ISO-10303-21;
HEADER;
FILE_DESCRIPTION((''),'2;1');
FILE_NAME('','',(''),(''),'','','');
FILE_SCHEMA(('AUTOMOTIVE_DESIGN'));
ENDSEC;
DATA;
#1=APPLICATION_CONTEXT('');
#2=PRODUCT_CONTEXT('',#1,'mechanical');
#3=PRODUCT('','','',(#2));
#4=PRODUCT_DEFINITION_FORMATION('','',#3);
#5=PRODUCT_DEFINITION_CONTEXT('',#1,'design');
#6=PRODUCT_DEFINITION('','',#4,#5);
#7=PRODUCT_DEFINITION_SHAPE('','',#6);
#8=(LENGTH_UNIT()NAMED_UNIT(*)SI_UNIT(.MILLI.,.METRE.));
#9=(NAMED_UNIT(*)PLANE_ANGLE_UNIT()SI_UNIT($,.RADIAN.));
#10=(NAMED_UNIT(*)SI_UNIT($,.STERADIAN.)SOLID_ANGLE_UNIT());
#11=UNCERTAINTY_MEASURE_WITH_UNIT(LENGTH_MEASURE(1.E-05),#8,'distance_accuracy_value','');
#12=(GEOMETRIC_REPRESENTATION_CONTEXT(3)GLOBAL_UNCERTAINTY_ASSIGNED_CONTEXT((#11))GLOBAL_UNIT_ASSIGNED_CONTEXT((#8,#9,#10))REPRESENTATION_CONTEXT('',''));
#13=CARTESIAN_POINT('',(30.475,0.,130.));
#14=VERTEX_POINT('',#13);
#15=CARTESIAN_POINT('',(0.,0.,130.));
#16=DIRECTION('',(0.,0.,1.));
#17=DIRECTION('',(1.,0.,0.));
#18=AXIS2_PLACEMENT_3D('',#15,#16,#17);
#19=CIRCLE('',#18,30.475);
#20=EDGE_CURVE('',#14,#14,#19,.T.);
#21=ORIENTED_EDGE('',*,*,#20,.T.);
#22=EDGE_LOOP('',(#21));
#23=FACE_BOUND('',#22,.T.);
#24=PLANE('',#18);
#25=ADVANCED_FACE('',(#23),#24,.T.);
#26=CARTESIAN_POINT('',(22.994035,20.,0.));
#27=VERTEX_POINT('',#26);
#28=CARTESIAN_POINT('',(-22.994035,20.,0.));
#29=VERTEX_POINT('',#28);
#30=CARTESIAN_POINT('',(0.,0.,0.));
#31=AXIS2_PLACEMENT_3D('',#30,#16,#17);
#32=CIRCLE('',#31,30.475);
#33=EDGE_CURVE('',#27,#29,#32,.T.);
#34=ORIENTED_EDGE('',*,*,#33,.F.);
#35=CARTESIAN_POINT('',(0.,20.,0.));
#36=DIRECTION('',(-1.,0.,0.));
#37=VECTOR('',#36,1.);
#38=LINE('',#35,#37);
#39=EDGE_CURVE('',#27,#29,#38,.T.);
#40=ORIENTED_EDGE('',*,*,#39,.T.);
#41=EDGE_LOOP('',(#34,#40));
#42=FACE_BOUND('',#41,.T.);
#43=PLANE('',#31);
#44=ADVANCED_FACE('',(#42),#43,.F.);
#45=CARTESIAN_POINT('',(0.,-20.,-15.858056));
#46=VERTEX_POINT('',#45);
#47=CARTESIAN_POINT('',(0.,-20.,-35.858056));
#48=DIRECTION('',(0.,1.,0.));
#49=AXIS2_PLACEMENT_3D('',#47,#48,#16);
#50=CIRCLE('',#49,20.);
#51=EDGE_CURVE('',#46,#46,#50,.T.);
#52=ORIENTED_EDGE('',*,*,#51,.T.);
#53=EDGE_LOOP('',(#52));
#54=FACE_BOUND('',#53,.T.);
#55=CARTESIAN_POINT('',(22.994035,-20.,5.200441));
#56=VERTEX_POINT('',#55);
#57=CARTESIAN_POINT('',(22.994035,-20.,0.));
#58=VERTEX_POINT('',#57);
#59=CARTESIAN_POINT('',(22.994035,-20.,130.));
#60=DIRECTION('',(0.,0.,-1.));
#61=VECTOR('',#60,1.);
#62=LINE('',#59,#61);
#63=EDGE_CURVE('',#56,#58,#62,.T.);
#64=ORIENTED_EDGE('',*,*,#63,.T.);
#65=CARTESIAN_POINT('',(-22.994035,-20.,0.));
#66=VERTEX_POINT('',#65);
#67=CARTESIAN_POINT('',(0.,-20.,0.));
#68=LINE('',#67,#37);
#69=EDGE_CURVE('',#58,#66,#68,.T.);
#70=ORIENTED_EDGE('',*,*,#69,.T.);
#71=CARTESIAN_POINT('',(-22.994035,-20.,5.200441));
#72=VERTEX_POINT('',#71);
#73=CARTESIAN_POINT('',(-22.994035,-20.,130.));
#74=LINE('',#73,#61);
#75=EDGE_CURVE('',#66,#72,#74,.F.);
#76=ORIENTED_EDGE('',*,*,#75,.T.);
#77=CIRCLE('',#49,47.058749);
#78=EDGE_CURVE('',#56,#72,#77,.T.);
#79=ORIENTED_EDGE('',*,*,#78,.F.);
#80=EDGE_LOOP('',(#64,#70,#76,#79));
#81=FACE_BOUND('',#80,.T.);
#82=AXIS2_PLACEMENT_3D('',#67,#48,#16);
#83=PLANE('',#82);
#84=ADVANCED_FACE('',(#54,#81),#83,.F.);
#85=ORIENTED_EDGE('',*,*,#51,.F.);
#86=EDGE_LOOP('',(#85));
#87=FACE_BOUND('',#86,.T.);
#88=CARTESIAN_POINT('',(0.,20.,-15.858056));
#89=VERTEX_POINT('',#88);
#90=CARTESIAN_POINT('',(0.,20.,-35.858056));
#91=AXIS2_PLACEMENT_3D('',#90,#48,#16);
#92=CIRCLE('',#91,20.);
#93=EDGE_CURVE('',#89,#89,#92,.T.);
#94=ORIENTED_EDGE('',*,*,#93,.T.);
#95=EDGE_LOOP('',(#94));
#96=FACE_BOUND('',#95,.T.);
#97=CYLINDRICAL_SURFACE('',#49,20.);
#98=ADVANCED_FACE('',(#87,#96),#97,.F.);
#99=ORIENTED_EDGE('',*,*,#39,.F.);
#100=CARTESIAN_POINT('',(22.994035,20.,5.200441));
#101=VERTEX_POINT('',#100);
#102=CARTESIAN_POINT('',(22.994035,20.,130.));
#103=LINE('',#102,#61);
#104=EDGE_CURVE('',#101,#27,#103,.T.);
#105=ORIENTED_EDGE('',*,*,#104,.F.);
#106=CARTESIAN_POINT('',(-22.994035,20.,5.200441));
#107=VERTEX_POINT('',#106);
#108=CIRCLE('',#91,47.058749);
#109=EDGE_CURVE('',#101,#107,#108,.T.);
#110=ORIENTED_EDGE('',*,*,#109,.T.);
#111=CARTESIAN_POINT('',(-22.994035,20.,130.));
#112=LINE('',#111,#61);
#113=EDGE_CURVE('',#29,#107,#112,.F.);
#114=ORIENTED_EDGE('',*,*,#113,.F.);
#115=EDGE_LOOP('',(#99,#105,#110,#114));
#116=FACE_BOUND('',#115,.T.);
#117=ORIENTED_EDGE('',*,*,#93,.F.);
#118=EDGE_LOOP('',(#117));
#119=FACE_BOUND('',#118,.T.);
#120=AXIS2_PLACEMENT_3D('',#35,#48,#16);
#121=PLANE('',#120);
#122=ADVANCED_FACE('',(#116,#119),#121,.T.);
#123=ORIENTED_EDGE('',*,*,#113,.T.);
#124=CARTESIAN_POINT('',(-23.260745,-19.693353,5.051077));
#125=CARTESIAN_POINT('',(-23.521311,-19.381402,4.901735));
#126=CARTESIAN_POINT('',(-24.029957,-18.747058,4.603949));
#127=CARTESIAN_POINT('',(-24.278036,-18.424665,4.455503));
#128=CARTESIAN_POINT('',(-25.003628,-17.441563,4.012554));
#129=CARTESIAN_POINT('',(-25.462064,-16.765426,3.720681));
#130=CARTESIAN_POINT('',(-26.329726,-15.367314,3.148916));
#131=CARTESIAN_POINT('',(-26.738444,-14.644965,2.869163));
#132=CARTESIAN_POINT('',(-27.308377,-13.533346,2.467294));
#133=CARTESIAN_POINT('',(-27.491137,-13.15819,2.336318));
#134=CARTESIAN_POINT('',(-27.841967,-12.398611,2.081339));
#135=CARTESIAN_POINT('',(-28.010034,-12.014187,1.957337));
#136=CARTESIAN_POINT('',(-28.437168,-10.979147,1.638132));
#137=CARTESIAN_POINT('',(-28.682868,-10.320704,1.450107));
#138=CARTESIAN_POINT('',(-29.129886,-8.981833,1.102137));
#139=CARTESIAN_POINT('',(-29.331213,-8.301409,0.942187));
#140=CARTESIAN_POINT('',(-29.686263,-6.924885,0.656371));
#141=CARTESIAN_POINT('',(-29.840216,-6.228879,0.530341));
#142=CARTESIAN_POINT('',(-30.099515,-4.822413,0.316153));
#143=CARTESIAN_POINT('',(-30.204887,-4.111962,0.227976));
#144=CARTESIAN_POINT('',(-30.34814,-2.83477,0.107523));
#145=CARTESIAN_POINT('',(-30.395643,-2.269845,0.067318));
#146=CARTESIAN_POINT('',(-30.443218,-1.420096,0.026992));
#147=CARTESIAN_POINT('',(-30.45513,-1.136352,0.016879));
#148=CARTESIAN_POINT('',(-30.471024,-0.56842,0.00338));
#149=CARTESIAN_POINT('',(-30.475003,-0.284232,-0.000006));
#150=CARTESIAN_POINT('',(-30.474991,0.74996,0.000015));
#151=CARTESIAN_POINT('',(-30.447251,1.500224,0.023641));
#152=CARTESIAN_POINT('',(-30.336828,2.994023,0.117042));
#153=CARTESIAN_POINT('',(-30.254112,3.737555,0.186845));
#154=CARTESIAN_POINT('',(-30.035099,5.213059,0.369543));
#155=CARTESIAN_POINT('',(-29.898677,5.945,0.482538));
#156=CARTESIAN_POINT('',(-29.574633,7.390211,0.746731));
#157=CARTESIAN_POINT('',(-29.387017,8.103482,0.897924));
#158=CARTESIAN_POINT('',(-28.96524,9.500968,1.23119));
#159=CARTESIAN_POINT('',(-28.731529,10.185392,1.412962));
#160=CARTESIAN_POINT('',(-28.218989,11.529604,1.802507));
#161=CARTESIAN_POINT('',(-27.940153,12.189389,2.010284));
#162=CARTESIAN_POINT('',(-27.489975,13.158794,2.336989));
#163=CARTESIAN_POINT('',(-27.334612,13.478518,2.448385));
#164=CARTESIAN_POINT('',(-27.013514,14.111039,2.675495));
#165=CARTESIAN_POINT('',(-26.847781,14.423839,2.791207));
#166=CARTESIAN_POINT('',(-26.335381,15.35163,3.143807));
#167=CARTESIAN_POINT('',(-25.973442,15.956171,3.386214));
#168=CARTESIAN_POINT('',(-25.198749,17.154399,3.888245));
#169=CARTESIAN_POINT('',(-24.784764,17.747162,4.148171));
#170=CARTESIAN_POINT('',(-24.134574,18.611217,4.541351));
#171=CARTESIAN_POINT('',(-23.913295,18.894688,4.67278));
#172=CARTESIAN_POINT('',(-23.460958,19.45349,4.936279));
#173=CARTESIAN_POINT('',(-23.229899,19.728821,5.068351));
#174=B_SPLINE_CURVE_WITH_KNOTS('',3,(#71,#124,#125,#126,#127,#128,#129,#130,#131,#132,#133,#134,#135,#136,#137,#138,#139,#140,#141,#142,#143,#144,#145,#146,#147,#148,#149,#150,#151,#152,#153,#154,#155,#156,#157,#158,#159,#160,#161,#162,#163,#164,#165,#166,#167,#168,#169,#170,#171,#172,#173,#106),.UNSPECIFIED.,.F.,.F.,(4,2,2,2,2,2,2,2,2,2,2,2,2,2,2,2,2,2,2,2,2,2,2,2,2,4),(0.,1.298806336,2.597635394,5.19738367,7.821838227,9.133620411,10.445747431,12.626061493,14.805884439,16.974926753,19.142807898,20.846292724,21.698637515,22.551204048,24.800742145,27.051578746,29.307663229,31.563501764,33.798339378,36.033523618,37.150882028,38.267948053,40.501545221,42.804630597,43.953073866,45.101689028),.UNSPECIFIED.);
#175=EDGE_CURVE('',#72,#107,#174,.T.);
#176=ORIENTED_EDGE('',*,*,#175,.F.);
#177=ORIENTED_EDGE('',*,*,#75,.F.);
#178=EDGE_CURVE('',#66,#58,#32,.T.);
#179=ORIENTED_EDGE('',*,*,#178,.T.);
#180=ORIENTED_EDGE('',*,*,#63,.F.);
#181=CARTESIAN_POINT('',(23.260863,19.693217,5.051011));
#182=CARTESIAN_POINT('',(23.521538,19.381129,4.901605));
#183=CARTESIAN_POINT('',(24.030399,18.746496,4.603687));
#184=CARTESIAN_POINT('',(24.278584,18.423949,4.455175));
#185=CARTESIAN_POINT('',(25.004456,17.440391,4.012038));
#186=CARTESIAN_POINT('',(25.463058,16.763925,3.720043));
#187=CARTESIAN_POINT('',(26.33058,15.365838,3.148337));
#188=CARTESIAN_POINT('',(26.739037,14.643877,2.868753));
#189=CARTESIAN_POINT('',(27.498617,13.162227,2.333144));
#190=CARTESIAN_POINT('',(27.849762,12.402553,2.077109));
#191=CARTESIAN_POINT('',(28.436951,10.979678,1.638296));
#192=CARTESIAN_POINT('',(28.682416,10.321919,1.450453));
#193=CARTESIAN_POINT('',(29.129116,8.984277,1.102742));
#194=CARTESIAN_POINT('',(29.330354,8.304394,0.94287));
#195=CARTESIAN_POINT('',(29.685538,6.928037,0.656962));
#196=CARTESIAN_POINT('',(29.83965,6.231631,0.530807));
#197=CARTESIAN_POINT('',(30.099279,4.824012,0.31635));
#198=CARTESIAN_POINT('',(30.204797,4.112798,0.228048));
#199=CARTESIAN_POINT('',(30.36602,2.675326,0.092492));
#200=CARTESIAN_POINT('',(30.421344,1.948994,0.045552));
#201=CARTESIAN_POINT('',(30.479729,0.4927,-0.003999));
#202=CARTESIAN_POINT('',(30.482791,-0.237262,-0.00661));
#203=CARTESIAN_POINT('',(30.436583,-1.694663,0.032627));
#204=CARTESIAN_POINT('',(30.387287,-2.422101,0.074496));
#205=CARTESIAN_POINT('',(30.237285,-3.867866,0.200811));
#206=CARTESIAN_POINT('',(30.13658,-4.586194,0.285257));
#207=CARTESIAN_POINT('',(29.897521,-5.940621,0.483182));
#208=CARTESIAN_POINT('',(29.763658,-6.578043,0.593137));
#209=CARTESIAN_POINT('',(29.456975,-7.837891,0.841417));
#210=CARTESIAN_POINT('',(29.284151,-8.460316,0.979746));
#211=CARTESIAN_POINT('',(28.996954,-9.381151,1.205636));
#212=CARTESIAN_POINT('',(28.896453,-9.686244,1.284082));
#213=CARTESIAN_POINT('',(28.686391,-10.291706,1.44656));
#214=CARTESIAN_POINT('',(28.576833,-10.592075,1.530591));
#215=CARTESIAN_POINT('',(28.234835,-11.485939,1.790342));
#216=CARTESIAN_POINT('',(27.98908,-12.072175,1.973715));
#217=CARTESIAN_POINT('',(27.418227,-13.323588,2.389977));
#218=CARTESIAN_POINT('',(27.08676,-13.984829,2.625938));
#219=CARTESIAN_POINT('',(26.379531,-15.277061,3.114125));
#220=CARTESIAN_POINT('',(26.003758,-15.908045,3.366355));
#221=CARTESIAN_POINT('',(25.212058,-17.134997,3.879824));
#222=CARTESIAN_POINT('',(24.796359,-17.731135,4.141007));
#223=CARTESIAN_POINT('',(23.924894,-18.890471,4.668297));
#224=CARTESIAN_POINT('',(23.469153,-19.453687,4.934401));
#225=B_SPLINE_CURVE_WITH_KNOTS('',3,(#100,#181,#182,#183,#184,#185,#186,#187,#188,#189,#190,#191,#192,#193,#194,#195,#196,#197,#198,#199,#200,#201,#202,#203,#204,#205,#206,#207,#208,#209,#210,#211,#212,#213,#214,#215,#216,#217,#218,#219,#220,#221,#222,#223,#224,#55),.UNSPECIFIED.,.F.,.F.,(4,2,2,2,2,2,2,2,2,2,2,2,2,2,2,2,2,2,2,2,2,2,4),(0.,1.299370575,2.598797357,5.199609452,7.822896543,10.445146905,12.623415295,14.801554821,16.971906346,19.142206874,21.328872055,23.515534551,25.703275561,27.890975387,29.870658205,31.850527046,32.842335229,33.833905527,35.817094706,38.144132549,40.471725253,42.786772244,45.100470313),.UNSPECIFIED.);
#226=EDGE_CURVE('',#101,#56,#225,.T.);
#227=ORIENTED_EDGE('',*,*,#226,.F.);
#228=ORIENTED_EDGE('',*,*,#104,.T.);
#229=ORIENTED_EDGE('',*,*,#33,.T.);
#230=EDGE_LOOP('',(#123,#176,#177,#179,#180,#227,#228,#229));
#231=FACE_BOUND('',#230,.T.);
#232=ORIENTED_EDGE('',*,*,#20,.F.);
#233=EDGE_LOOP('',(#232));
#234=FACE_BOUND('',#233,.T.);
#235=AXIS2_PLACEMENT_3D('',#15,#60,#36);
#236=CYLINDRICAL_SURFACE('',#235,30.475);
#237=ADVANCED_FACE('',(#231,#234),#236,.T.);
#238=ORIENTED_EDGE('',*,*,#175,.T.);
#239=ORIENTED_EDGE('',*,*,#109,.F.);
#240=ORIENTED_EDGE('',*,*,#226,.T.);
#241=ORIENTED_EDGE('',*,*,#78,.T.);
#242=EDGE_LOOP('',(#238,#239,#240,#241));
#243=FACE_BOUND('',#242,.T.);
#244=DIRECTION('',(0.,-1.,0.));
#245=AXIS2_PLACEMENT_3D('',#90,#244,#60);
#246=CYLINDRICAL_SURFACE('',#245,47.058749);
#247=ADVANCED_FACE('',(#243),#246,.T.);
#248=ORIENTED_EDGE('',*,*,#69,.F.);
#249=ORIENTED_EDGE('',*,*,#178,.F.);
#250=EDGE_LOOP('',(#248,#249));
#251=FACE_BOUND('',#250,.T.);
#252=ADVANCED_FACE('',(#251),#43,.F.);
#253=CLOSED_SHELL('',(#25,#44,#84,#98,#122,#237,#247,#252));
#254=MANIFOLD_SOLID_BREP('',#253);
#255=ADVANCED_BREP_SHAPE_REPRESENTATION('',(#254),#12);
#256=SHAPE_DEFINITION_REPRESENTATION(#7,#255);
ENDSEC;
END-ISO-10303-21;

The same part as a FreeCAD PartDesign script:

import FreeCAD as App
import Part
import Sketcher

V = App.Vector

doc = App.newDocument("Part")
body = doc.addObject("PartDesign::Body", "Body")

# Sketch on XY plane
sketch1 = body.newObject("Sketcher::SketchObject", "Sketch")
sketch1.AttachmentSupport = (doc.getObject("XY_Plane"), [""])
sketch1.MapMode = "FlatFace"
sketch1.addGeometry(Part.Circle(V(0, 0, 0), V(0, 0, 1), 30.475), False)
sketch1.addConstraint(Sketcher.Constraint("Coincident", 0, 3, -1, 1))
sketch1.addConstraint(Sketcher.Constraint("Diameter", 0, 60.95))
pad1 = body.newObject("PartDesign::Pad", "Pad")
pad1.Profile = sketch1
pad1.Length = 130

# Sketch on XZ plane
sketch2 = body.newObject("Sketcher::SketchObject", "Sketch001")
sketch2.AttachmentSupport = (doc.getObject("XZ_Plane"), [""])
sketch2.MapMode = "FlatFace"
sketch2.addGeometry(Part.Circle(V(0, -35.858056, 0), V(0, 0, 1), 47.058749), False)
sketch2.addConstraint(Sketcher.Constraint("PointOnObject", 0, 3, -2))
sketch2.addConstraint(Sketcher.Constraint("Diameter", 0, 94.117497))
sketch2.addConstraint(Sketcher.Constraint("DistanceY", 0, 3, -1, 1, 35.858056))
pad2 = body.newObject("PartDesign::Pad", "Pad001")
pad2.Profile = sketch2
pad2.Length = 40
pad2.Midplane = True

# Sketch on XZ plane
sketch3 = body.newObject("Sketcher::SketchObject", "Sketch002")
sketch3.AttachmentSupport = (doc.getObject("XZ_Plane"), [""])
sketch3.MapMode = "FlatFace"
sketch3.AttachmentOffset = App.Placement(V(0, 0, -20), App.Rotation())
sketch3.addGeometry(Part.Circle(V(0, -35.858056, 0), V(0, 0, 1), 20), False)
sketch3.addConstraint(Sketcher.Constraint("PointOnObject", 0, 3, -2))
sketch3.addConstraint(Sketcher.Constraint("Diameter", 0, 40.0))
sketch3.addConstraint(Sketcher.Constraint("DistanceY", 0, 3, -1, 1, 35.858056))
pocket1 = body.newObject("PartDesign::Pocket", "Pocket")
pocket1.Profile = sketch3
pocket1.Length = 40
pocket1.Reversed = True

doc.recompute()
